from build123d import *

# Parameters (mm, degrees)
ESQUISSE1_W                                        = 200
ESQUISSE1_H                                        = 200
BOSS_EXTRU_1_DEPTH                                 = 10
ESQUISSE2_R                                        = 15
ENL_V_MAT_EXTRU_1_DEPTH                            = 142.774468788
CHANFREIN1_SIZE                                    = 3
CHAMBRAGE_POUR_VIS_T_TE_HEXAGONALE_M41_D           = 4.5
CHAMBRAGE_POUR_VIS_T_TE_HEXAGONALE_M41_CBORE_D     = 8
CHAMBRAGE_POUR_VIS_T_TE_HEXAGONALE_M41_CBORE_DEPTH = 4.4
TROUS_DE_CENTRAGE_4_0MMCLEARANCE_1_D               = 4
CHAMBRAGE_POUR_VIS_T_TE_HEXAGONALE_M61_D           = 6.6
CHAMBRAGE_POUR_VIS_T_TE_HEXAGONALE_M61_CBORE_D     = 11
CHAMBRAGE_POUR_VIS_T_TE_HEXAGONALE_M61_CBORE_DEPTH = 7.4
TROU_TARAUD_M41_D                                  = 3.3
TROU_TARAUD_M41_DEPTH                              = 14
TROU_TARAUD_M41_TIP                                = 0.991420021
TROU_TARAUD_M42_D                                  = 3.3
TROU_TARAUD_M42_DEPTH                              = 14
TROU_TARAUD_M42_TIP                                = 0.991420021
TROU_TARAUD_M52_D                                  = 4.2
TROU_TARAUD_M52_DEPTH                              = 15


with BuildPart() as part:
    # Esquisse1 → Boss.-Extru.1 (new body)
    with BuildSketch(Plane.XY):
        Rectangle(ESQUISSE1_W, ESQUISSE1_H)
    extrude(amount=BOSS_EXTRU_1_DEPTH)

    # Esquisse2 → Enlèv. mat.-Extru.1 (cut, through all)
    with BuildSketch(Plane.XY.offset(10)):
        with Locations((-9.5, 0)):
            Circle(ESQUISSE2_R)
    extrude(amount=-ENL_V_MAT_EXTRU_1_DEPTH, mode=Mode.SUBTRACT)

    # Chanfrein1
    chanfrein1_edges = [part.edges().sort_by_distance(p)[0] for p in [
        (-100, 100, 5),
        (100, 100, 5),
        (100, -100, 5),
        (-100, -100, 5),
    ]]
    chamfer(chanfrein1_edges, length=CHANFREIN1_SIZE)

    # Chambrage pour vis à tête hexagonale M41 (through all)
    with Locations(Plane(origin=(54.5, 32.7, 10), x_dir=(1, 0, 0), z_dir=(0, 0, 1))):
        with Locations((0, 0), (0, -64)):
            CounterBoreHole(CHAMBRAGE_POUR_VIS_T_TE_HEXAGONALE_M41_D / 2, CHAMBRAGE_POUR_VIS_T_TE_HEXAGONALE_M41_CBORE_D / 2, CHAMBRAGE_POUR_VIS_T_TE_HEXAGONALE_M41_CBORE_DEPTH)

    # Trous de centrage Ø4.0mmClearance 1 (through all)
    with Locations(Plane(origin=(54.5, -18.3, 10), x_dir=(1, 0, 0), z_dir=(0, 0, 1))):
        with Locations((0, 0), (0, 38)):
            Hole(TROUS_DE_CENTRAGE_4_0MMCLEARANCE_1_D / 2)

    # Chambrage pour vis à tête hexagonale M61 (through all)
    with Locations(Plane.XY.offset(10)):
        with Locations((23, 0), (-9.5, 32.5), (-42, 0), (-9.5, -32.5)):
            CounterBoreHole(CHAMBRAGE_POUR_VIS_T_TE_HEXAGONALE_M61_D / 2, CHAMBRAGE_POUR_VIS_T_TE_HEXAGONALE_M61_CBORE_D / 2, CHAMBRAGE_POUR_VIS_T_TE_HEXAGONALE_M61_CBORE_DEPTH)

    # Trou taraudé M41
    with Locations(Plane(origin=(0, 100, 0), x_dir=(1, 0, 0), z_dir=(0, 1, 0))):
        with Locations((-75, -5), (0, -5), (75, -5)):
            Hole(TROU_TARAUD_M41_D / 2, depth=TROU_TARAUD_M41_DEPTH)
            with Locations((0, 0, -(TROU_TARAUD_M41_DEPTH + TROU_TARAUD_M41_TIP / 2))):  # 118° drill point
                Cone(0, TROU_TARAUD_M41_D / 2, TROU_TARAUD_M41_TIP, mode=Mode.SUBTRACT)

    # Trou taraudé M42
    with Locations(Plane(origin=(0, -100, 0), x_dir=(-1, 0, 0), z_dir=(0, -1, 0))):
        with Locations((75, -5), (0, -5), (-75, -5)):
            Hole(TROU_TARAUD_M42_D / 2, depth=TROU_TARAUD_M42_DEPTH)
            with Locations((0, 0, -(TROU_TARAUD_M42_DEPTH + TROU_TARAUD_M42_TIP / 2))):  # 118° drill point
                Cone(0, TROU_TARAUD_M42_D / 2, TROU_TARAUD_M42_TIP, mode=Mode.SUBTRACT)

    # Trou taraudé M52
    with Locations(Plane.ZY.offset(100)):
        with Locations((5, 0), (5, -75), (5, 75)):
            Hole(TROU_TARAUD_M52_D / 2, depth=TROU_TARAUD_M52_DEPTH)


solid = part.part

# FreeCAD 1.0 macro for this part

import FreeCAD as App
import Part
import Sketcher

V = App.Vector
Q = App.Units.Quantity


def edges_at(feature, points):
    """Names of the edges that pass closest to the given points."""
    edges = feature.Shape.Edges
    near = lambda p: min(range(len(edges)), key=lambda i: edges[i].distToShape(Part.Vertex(*p))[0])
    return sorted({f"Edge{near(p) + 1}" for p in points})

doc = App.newDocument("Part")
params = doc.addObject("Spreadsheet::Sheet", "Params")
for row, (alias, value) in enumerate([
    ("sketch1_width", "200 mm"),
    ("pad1_length", "10 mm"),
    ("sketch2_diameter", "30 mm"),
    ("chamfer_size", "3 mm"),
    ("sketch3_diameter", "4.5 mm"),
    ("hole_diameter", "4.5 mm"),
    ("hole_cbore_diameter", "8 mm"),
    ("hole_cbore_depth", "4.4 mm"),
    ("sketch4_diameter", "4 mm"),
    ("hole2_diameter", "4 mm"),
    ("sketch5_diameter", "6.6 mm"),
    ("hole3_diameter", "6.6 mm"),
    ("hole3_cbore_diameter", "11 mm"),
    ("hole3_cbore_depth", "7.4 mm"),
    ("sketch6_diameter", "3.3 mm"),
    ("hole4_diameter", "3.3 mm"),
    ("hole4_depth", "14 mm"),
    ("sketch7_diameter", "3.3 mm"),
    ("hole5_diameter", "3.3 mm"),
    ("hole5_depth", "14 mm"),
    ("sketch8_diameter", "4.2 mm"),
    ("hole6_diameter", "4.2 mm"),
    ("hole6_depth", "15 mm"),
], start=1):
    params.set(f"A{row}", alias)
    params.set(f"B{row}", "=" + value)
    params.setAlias(f"B{row}", alias)

body = doc.addObject("PartDesign::Body", "Body")

# Sketch on XY plane
sketch1 = body.newObject("Sketcher::SketchObject", "Sketch")
sketch1.AttachmentSupport = (doc.getObject("XY_Plane"), [""])
sketch1.MapMode = "FlatFace"
sketch1.addGeometry([
    Part.LineSegment(V(-100, 100, 0), V(-100, -100, 0)),
    Part.LineSegment(V(-100, -100, 0), V(100, -100, 0)),
    Part.LineSegment(V(100, -100, 0), V(100, 100, 0)),
    Part.LineSegment(V(100, 100, 0), V(-100, 100, 0)),
], False)
sketch1.addConstraint([
    Sketcher.Constraint("Coincident", 0, 2, 1, 1),
    Sketcher.Constraint("Coincident", 1, 2, 2, 1),
    Sketcher.Constraint("Coincident", 2, 2, 3, 1),
    Sketcher.Constraint("Coincident", 3, 2, 0, 1),
    Sketcher.Constraint("Vertical", 0),
    Sketcher.Constraint("Horizontal", 1),
    Sketcher.Constraint("Vertical", 2),
    Sketcher.Constraint("Horizontal", 3),
    Sketcher.Constraint("Symmetric", 0, 2, 2, 2, -1, 1),
    Sketcher.Constraint("Equal", 3, 0),
    Sketcher.Constraint("DistanceX", 1, 1, 1, 2, Q("200 mm")),
])
sketch1.setExpression("Constraints[10]", "Params.sketch1_width")
pad1 = body.newObject("PartDesign::Pad", "Pad")
pad1.Profile = sketch1
pad1.setExpression("Length", "Params.pad1_length")

# Sketch on XY plane
sketch2 = body.newObject("Sketcher::SketchObject", "Sketch001")
sketch2.AttachmentSupport = (doc.getObject("XY_Plane"), [""])
sketch2.MapMode = "FlatFace"
sketch2.AttachmentOffset = App.Placement(V(0, 0, 10), App.Rotation())
sketch2.addGeometry(Part.Circle(V(-9.5, 0, 0), V(0, 0, 1), 15), False)
sketch2.addConstraint([
    Sketcher.Constraint("PointOnObject", 0, 3, -1),
    Sketcher.Constraint("Diameter", 0, Q("30 mm")),
    Sketcher.Constraint("DistanceX", 0, 3, -1, 1, Q("9.5 mm")),
])
sketch2.setExpression("Constraints[1]", "Params.sketch2_diameter")
pocket1 = body.newObject("PartDesign::Pocket", "Pocket")
pocket1.Profile = sketch2
pocket1.Type = "ThroughAll"
doc.recompute()

chamfer = body.newObject("PartDesign::Chamfer", "Chamfer")
chamfer.Base = (pocket1, edges_at(pocket1, [
    (-100, 100, 5),
    (100, 100, 5),
    (100, -100, 5),
    (-100, -100, 5),
]))
chamfer.setExpression("Size", "Params.chamfer_size")

# Sketch on XY plane
sketch3 = body.newObject("Sketcher::SketchObject", "Sketch002")
sketch3.AttachmentSupport = (doc.getObject("XY_Plane"), [""])
sketch3.MapMode = "FlatFace"
sketch3.AttachmentOffset = App.Placement(V(0, 0, 10), App.Rotation())
sketch3.addGeometry([
    Part.Circle(V(54.5, 32.7, 0), V(0, 0, 1), 2.25),
    Part.Circle(V(54.5, -31.3, 0), V(0, 0, 1), 2.25),
], False)
sketch3.addConstraint([
    Sketcher.Constraint("Equal", 0, 1),
    Sketcher.Constraint("Vertical", 0, 3, 1, 3),
    Sketcher.Constraint("Diameter", 0, Q("4.5 mm")),
    Sketcher.Constraint("DistanceY", 1, 3, 0, 3, Q("64 mm")),
    Sketcher.Constraint("DistanceX", -1, 1, 0, 3, Q("54.5 mm")),
    Sketcher.Constraint("DistanceY", -1, 1, 0, 3, Q("32.7 mm")),
])
sketch3.setExpression("Constraints[2]", "Params.sketch3_diameter")
doc.recompute()
hole = body.newObject("PartDesign::Hole", "Hole")
hole.Profile = sketch3
hole.ThreadType = "None"
hole.setExpression("Diameter", "Params.hole_diameter")
hole.DepthType = "ThroughAll"
hole.HoleCutType = "Counterbore"
hole.setExpression("HoleCutDiameter", "Params.hole_cbore_diameter")
hole.setExpression("HoleCutDepth", "Params.hole_cbore_depth")

# Sketch on XY plane
sketch4 = body.newObject("Sketcher::SketchObject", "Sketch003")
sketch4.AttachmentSupport = (doc.getObject("XY_Plane"), [""])
sketch4.MapMode = "FlatFace"
sketch4.AttachmentOffset = App.Placement(V(0, 0, 10), App.Rotation())
sketch4.addGeometry([
    Part.Circle(V(54.5, -18.3, 0), V(0, 0, 1), 2),
    Part.Circle(V(54.5, 19.7, 0), V(0, 0, 1), 2),
], False)
sketch4.addConstraint([
    Sketcher.Constraint("Equal", 0, 1),
    Sketcher.Constraint("Vertical", 0, 3, 1, 3),
    Sketcher.Constraint("Diameter", 0, Q("4 mm")),
    Sketcher.Constraint("DistanceY", 0, 3, 1, 3, Q("38 mm")),
    Sketcher.Constraint("DistanceX", -1, 1, 0, 3, Q("54.5 mm")),
    Sketcher.Constraint("DistanceY", 0, 3, -1, 1, Q("18.3 mm")),
])
sketch4.setExpression("Constraints[2]", "Params.sketch4_diameter")
doc.recompute()
hole2 = body.newObject("PartDesign::Hole", "Hole001")
hole2.Profile = sketch4
hole2.ThreadType = "None"
hole2.setExpression("Diameter", "Params.hole2_diameter")
hole2.DepthType = "ThroughAll"

# Sketch on XY plane
sketch5 = body.newObject("Sketcher::SketchObject", "Sketch004")
sketch5.AttachmentSupport = (doc.getObject("XY_Plane"), [""])
sketch5.MapMode = "FlatFace"
sketch5.AttachmentOffset = App.Placement(V(0, 0, 10), App.Rotation())
sketch5.addGeometry([
    Part.Circle(V(23, 0, 0), V(0, 0, 1), 3.3),
    Part.Circle(V(-9.5, 32.5, 0), V(0, 0, 1), 3.3),
    Part.Circle(V(-42, 0, 0), V(0, 0, 1), 3.3),
    Part.Circle(V(-9.5, -32.5, 0), V(0, 0, 1), 3.3),
], False)
sketch5.addConstraint([
    Sketcher.Constraint("Equal", 0, 1),
    Sketcher.Constraint("Equal", 1, 2),
    Sketcher.Constraint("Equal", 2, 3),
    Sketcher.Constraint("Symmetric", 1, 3, 3, 3, -1),
    Sketcher.Constraint("PointOnObject", 0, 3, -1),
    Sketcher.Constraint("PointOnObject", 2, 3, -1),
    Sketcher.Constraint("Diameter", 0, Q("6.6 mm")),
    Sketcher.Constraint("DistanceX", -1, 1, 0, 3, Q("23 mm")),
    Sketcher.Constraint("DistanceX", 2, 3, -1, 1, Q("42 mm")),
    Sketcher.Constraint("DistanceY", 3, 3, 1, 3, Q("65 mm")),
    Sketcher.Constraint("DistanceX", 1, 3, -1, 1, Q("9.5 mm")),
])
sketch5.setExpression("Constraints[6]", "Params.sketch5_diameter")
doc.recompute()
hole3 = body.newObject("PartDesign::Hole", "Hole002")
hole3.Profile = sketch5
hole3.ThreadType = "None"
hole3.setExpression("Diameter", "Params.hole3_diameter")
hole3.DepthType = "ThroughAll"
hole3.HoleCutType = "Counterbore"
hole3.setExpression("HoleCutDiameter", "Params.hole3_cbore_diameter")
hole3.setExpression("HoleCutDepth", "Params.hole3_cbore_depth")

# Sketch on XZ plane
sketch6 = body.newObject("Sketcher::SketchObject", "Sketch005")
sketch6.AttachmentSupport = (doc.getObject("XZ_Plane"), [""])
sketch6.MapMode = "FlatFace"
sketch6.AttachmentOffset = App.Placement(V(0, 0, -100), App.Rotation())
sketch6.addGeometry([
    Part.Circle(V(-75, 5, 0), V(0, 0, 1), 1.65),
    Part.Circle(V(0, 5, 0), V(0, 0, 1), 1.65),
    Part.Circle(V(75, 5, 0), V(0, 0, 1), 1.65),
], False)
sketch6.addConstraint([
    Sketcher.Constraint("Equal", 0, 1),
    Sketcher.Constraint("Equal", 1, 2),
    Sketcher.Constraint("Symmetric", 0, 3, 2, 3, -2),
    Sketcher.Constraint("PointOnObject", 1, 3, -2),
    Sketcher.Constraint("Horizontal", 0, 3, 1, 3),
    Sketcher.Constraint("Diameter", 0, Q("3.3 mm")),
    Sketcher.Constraint("DistanceX", 0, 3, -1, 1, Q("75 mm")),
    Sketcher.Constraint("DistanceY", -1, 1, 0, 3, Q("5 mm")),
])
sketch6.setExpression("Constraints[5]", "Params.sketch6_diameter")
doc.recompute()
hole4 = body.newObject("PartDesign::Hole", "Hole003")
hole4.Profile = sketch6
hole4.ThreadType = "None"
hole4.setExpression("Diameter", "Params.hole4_diameter")
hole4.DepthType = "Dimension"
hole4.setExpression("Depth", "Params.hole4_depth")
hole4.DrillPoint = "Angled"
hole4.DrillPointAngle = 118
hole4.Reversed = True

# Sketch on XZ plane
sketch7 = body.newObject("Sketcher::SketchObject", "Sketch006")
sketch7.AttachmentSupport = (doc.getObject("XZ_Plane"), [""])
sketch7.MapMode = "FlatFace"
sketch7.AttachmentOffset = App.Placement(V(0, 0, 100), App.Rotation())
sketch7.addGeometry([
    Part.Circle(V(-75, 5, 0), V(0, 0, 1), 1.65),
    Part.Circle(V(0, 5, 0), V(0, 0, 1), 1.65),
    Part.Circle(V(75, 5, 0), V(0, 0, 1), 1.65),
], False)
sketch7.addConstraint([
    Sketcher.Constraint("Equal", 0, 1),
    Sketcher.Constraint("Equal", 1, 2),
    Sketcher.Constraint("Symmetric", 0, 3, 2, 3, -2),
    Sketcher.Constraint("PointOnObject", 1, 3, -2),
    Sketcher.Constraint("Horizontal", 0, 3, 1, 3),
    Sketcher.Constraint("Diameter", 0, Q("3.3 mm")),
    Sketcher.Constraint("DistanceX", 0, 3, -1, 1, Q("75 mm")),
    Sketcher.Constraint("DistanceY", -1, 1, 0, 3, Q("5 mm")),
])
sketch7.setExpression("Constraints[5]", "Params.sketch7_diameter")
doc.recompute()
hole5 = body.newObject("PartDesign::Hole", "Hole004")
hole5.Profile = sketch7
hole5.ThreadType = "None"
hole5.setExpression("Diameter", "Params.hole5_diameter")
hole5.DepthType = "Dimension"
hole5.setExpression("Depth", "Params.hole5_depth")
hole5.DrillPoint = "Angled"
hole5.DrillPointAngle = 118

# Sketch on YZ plane
sketch8 = body.newObject("Sketcher::SketchObject", "Sketch007")
sketch8.AttachmentSupport = (doc.getObject("YZ_Plane"), [""])
sketch8.MapMode = "FlatFace"
sketch8.AttachmentOffset = App.Placement(V(0, 0, -100), App.Rotation())
sketch8.addGeometry([
    Part.Circle(V(0, 5, 0), V(0, 0, 1), 2.1),
    Part.Circle(V(-75, 5, 0), V(0, 0, 1), 2.1),
    Part.Circle(V(75, 5, 0), V(0, 0, 1), 2.1),
], False)
sketch8.addConstraint([
    Sketcher.Constraint("Equal", 0, 1),
    Sketcher.Constraint("Equal", 1, 2),
    Sketcher.Constraint("Symmetric", 1, 3, 2, 3, -2),
    Sketcher.Constraint("PointOnObject", 0, 3, -2),
    Sketcher.Constraint("Horizontal", 0, 3, 1, 3),
    Sketcher.Constraint("Diameter", 0, Q("4.2 mm")),
    Sketcher.Constraint("DistanceY", -1, 1, 0, 3, Q("5 mm")),
    Sketcher.Constraint("DistanceX", 1, 3, -1, 1, Q("75 mm")),
])
sketch8.setExpression("Constraints[5]", "Params.sketch8_diameter")
doc.recompute()
hole6 = body.newObject("PartDesign::Hole", "Hole005")
hole6.Profile = sketch8
hole6.ThreadType = "None"
hole6.setExpression("Diameter", "Params.hole6_diameter")
hole6.DepthType = "Dimension"
hole6.setExpression("Depth", "Params.hole6_depth")
hole6.DrillPoint = "Flat"
hole6.Reversed = True

doc.recompute()
